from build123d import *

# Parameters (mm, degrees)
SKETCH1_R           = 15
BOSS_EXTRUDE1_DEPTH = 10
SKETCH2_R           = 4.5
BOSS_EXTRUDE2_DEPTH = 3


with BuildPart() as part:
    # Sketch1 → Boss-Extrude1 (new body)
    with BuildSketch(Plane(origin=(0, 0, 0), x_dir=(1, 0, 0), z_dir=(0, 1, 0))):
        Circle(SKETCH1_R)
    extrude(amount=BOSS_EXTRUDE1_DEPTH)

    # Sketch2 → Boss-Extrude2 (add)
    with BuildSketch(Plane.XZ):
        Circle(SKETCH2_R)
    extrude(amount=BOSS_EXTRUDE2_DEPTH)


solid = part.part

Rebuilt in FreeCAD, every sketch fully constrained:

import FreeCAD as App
import Part
import Sketcher

V = App.Vector
Q = App.Units.Quantity

doc = App.newDocument("Part")
body = doc.addObject("PartDesign::Body", "Body")

# Sketch on XZ plane
sketch1 = doc.addObject("Sketcher::SketchObject", "Sketch")
body.addObject(sketch1)
sketch1.AttachmentSupport = (doc.XZ_Plane, [""])
sketch1.MapMode = "FlatFace"
sketch1.addGeometry(Part.Circle(V(0, 0, 0), V(0, 0, 1), 15), False)
sketch1.addConstraint(Sketcher.Constraint("Coincident", 0, 3, -1, 1))
sketch1.addConstraint(Sketcher.Constraint("Diameter", 0, Q("30 mm")))
pad1 = doc.addObject("PartDesign::Pad", "Pad")
body.addObject(pad1)
pad1.Profile = sketch1
pad1.Length = 10
pad1.Reversed = True

# Sketch on XZ plane
sketch2 = doc.addObject("Sketcher::SketchObject", "Sketch001")
body.addObject(sketch2)
sketch2.AttachmentSupport = (doc.XZ_Plane, [""])
sketch2.MapMode = "FlatFace"
sketch2.addGeometry(Part.Circle(V(0, 0, 0), V(0, 0, 1), 4.5), False)
sketch2.addConstraint(Sketcher.Constraint("Coincident", 0, 3, -1, 1))
sketch2.addConstraint(Sketcher.Constraint("Diameter", 0, Q("9 mm")))
pad2 = doc.addObject("PartDesign::Pad", "Pad001")
body.addObject(pad2)
pad2.Profile = sketch2
pad2.Length = 3

doc.recompute()
